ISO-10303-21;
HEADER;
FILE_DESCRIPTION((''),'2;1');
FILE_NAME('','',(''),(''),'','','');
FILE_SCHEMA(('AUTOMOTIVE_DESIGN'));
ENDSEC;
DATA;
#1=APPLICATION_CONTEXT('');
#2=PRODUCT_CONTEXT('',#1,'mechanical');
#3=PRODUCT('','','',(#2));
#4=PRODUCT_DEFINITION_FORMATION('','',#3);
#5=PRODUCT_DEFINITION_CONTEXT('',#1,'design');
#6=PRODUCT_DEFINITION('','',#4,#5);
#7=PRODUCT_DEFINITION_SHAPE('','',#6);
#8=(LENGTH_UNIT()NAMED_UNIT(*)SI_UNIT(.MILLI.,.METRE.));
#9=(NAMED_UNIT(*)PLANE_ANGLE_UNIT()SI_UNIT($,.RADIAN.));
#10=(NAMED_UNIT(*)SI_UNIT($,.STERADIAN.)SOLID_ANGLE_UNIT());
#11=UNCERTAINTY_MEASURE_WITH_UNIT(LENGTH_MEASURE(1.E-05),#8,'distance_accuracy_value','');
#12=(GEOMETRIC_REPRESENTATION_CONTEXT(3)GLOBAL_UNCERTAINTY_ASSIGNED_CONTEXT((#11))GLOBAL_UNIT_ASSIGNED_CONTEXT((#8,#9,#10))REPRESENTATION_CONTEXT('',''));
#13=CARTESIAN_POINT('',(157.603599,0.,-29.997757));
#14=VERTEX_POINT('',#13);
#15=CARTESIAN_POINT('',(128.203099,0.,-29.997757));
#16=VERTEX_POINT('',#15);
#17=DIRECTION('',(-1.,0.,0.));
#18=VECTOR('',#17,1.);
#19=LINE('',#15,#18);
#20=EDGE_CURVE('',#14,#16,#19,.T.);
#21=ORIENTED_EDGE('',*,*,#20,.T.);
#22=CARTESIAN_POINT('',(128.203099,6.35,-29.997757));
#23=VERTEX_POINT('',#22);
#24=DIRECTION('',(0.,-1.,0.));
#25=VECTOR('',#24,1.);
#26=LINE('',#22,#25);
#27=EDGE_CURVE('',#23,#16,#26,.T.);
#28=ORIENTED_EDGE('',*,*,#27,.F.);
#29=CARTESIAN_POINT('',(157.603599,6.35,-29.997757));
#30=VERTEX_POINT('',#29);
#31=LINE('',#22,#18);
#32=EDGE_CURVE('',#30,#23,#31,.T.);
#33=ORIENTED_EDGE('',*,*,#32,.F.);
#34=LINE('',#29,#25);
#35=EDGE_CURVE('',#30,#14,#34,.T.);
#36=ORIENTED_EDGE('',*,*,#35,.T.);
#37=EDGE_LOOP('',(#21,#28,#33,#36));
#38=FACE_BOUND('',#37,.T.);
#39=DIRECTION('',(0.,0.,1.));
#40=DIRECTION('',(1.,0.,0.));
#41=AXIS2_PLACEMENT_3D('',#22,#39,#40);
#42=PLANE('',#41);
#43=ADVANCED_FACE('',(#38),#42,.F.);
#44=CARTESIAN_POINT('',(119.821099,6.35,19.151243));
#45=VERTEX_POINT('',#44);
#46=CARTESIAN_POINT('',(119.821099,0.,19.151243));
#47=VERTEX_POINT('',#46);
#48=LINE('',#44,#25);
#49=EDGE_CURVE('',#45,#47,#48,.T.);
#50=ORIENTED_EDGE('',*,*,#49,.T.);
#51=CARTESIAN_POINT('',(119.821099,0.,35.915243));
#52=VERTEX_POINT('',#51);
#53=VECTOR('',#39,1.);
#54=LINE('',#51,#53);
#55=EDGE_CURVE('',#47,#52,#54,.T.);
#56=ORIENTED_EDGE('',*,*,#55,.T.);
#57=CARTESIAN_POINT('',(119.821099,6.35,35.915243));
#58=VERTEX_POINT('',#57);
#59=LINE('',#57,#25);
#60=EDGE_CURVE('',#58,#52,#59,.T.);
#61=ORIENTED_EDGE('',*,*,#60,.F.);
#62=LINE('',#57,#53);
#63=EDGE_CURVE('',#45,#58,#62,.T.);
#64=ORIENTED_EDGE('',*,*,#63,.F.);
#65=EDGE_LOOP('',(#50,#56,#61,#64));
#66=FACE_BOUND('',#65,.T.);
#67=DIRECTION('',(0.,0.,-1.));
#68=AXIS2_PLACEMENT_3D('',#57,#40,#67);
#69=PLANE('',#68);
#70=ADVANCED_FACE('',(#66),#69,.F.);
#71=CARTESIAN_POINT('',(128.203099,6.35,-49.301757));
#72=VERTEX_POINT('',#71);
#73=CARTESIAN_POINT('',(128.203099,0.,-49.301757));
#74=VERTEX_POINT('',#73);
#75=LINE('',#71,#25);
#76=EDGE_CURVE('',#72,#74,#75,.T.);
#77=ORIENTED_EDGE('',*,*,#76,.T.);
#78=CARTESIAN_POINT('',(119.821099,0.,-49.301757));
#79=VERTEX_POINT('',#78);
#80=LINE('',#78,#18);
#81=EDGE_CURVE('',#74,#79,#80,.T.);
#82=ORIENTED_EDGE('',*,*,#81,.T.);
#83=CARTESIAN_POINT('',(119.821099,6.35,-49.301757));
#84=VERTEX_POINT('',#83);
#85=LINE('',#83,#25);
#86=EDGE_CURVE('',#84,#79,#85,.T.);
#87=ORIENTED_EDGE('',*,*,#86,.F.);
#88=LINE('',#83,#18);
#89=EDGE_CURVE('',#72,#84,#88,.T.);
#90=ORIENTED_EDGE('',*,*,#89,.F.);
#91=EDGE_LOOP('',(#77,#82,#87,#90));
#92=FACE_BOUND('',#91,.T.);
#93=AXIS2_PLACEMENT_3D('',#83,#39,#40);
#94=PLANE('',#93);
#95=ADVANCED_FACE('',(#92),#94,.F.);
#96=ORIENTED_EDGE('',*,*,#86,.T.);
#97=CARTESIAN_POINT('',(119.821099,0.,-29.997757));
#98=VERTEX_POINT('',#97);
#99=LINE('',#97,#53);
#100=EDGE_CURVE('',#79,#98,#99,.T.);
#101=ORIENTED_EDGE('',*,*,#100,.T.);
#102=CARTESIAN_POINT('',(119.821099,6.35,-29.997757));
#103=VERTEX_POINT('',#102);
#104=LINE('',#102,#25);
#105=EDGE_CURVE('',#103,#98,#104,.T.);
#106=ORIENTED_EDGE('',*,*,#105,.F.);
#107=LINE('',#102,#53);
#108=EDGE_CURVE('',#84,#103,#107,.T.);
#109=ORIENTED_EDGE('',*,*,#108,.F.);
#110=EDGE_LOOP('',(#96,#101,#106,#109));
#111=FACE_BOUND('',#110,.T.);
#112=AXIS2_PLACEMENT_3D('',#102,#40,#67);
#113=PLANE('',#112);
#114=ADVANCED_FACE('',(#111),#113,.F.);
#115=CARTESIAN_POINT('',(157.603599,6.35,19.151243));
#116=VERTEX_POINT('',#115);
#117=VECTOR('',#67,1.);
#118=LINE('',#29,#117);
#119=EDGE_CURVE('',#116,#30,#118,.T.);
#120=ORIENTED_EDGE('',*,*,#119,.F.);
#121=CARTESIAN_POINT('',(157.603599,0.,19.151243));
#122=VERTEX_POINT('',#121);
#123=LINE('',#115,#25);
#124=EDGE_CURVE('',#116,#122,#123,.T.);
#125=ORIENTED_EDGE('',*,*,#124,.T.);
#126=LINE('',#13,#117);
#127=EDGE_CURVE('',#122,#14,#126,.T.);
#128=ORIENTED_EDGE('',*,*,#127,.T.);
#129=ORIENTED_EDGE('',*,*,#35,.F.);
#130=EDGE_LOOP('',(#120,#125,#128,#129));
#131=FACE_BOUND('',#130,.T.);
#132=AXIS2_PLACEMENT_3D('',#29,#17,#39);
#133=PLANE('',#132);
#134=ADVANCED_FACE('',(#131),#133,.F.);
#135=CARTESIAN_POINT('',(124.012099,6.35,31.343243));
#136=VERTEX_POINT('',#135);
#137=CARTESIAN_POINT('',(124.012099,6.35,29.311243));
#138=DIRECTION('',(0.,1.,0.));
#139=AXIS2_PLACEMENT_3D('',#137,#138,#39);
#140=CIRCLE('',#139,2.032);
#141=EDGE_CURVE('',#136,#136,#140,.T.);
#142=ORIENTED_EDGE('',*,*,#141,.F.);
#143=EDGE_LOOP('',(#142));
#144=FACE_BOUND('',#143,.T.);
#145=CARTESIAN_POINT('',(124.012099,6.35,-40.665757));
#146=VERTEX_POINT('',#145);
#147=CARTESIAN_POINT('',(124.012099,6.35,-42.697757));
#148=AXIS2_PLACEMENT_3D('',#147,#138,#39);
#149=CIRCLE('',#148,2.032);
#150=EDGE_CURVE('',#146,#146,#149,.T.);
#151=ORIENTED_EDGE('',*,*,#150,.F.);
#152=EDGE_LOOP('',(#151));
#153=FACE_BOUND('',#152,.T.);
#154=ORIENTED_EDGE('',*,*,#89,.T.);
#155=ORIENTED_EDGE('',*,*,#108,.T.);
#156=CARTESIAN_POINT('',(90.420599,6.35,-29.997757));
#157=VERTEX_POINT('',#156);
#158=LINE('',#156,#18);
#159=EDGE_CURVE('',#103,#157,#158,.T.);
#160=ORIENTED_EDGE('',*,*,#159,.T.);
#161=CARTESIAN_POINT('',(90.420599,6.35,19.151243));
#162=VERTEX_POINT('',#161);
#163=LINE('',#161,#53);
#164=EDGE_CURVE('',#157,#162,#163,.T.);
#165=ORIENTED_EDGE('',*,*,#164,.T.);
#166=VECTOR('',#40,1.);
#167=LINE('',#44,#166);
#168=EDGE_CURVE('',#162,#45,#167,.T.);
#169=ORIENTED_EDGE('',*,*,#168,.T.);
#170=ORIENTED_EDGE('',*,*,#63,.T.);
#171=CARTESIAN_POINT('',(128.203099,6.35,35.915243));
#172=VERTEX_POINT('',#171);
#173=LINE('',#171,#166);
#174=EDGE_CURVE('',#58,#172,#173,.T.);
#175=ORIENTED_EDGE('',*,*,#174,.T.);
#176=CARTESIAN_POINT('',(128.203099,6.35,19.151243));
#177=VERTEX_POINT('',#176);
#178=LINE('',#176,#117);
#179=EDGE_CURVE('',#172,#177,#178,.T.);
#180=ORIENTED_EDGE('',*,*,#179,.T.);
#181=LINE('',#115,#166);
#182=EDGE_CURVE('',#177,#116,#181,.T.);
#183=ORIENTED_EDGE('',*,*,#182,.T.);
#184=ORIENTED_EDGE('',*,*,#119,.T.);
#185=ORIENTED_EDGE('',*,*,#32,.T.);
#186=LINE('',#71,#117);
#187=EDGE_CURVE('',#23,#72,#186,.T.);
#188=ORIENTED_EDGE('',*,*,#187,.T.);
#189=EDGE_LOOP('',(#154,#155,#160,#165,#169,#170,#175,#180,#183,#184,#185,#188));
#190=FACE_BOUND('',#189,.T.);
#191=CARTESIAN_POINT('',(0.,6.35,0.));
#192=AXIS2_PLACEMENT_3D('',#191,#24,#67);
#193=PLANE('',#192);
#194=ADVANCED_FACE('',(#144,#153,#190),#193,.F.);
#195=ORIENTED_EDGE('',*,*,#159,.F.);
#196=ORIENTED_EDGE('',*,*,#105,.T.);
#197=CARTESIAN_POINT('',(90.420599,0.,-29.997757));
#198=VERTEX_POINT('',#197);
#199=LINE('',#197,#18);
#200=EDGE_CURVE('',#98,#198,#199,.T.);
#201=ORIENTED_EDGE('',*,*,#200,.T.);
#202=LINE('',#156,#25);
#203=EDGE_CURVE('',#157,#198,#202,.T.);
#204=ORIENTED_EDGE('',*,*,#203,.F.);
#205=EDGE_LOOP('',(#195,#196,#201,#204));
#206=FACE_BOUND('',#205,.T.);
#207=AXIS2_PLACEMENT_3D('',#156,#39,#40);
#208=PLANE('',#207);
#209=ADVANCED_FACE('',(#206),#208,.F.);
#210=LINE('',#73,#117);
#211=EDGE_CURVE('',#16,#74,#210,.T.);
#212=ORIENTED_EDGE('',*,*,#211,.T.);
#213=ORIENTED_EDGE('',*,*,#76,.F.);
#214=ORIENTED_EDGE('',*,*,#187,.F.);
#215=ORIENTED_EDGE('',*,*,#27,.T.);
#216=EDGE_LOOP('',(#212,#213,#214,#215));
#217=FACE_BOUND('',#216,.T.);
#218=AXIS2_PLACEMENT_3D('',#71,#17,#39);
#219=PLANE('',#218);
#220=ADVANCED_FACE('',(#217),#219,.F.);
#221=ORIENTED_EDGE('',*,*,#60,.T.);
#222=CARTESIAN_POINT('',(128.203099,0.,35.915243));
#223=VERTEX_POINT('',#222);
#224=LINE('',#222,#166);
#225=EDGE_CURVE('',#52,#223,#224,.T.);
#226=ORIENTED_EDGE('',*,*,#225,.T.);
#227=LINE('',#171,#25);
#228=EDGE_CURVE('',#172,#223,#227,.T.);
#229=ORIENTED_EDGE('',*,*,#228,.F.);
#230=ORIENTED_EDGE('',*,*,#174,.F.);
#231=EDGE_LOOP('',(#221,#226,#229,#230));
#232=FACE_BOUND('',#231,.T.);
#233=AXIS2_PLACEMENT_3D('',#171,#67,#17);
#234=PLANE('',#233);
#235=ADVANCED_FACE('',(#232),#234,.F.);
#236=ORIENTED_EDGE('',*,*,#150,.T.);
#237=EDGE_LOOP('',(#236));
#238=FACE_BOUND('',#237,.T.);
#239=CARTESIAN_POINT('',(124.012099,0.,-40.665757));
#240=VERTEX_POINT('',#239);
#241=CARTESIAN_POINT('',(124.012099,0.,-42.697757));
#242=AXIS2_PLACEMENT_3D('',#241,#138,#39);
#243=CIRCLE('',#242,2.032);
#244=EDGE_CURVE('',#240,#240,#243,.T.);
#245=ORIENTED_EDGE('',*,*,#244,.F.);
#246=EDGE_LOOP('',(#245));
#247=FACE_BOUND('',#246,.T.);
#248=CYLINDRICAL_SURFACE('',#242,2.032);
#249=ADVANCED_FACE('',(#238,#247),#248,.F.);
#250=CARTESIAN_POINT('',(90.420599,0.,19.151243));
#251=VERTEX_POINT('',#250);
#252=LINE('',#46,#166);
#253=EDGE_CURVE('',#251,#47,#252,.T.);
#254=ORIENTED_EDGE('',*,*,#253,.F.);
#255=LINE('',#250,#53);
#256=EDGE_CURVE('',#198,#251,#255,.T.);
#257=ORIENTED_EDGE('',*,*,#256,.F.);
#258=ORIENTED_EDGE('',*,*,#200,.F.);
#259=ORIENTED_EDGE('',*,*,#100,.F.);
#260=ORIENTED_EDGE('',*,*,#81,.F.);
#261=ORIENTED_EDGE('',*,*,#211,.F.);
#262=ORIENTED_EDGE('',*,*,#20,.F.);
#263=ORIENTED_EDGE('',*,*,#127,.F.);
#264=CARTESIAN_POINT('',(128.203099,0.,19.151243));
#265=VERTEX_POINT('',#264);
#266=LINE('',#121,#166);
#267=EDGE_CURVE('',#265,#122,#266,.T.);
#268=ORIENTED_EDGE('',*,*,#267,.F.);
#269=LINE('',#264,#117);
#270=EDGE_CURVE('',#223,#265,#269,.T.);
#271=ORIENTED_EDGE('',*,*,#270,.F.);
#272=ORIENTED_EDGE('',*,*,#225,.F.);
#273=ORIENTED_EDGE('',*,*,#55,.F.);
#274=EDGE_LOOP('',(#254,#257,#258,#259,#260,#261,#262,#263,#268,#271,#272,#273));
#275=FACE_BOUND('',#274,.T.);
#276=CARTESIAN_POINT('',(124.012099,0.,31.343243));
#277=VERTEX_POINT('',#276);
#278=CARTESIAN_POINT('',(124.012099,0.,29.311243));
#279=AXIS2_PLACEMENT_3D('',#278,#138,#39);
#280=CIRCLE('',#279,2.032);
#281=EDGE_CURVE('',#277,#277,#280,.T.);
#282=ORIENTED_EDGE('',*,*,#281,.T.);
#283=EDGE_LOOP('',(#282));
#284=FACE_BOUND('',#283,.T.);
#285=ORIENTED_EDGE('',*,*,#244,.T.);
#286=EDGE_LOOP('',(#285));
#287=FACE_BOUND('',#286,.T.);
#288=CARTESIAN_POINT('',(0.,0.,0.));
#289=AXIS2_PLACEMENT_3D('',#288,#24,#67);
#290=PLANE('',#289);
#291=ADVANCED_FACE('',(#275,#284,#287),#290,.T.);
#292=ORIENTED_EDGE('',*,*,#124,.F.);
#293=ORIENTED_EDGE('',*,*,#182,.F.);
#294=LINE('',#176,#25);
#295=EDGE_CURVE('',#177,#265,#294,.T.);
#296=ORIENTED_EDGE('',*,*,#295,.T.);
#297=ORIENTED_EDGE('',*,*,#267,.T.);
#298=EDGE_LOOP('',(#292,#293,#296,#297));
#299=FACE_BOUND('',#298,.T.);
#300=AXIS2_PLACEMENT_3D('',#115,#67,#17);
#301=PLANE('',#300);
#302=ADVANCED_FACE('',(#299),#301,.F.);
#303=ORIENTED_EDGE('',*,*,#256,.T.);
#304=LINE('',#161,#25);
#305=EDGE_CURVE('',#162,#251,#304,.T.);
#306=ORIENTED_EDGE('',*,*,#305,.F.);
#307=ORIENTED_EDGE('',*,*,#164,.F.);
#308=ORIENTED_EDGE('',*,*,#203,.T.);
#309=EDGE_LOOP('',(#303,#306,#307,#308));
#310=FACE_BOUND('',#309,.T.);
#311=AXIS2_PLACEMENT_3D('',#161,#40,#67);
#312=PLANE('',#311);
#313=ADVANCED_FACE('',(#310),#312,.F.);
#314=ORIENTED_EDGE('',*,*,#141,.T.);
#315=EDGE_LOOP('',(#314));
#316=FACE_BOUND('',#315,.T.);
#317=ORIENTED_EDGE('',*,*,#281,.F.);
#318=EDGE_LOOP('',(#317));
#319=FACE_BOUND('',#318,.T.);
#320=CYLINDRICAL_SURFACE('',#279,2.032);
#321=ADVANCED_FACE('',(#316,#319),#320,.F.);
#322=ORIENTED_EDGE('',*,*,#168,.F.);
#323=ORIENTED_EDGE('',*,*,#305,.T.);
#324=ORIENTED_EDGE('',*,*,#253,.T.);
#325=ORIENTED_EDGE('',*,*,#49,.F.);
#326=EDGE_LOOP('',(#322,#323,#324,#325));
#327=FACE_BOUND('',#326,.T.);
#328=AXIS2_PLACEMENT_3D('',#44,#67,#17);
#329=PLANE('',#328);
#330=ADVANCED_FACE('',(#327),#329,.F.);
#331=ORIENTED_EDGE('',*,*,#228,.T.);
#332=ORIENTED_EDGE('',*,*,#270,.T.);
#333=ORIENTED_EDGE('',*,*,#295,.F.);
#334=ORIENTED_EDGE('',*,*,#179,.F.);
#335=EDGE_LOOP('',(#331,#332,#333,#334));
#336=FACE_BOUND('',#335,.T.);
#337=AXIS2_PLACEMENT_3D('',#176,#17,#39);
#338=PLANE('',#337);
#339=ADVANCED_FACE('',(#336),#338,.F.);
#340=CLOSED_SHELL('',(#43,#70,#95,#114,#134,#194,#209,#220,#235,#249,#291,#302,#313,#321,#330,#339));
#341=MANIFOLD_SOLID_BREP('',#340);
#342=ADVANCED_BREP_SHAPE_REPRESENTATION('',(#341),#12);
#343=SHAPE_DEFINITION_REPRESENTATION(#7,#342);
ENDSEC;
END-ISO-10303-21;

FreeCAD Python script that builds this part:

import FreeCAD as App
import Part
import Sketcher
from FreeCAD import Vector
Q = App.Units.Quantity


def add_polygon(sketch, points):
    """Adds a closed chain of lines whose ends are joined by coincident constraints."""
    first, n = sketch.GeometryCount, len(points)
    for a, b in zip(points, points[1:] + points[:1]):
        sketch.addGeometry(Part.LineSegment(App.Vector(*a, 0), App.Vector(*b, 0)), False)
    for i in range(n):
        sketch.addConstraint(Sketcher.Constraint("Coincident", first + i, 2, first + (i + 1) % n, 1))

doc = App.newDocument("Part")
params = doc.addObject("Spreadsheet::Sheet", "Params")
for row, (alias, value) in enumerate([
    ("sketch1_width", "0.33 in"),
    ("sketch1_height", "0.66 in"),
    ("sketch1_height2", "0.76 in"),
    ("sketch1_height3", "1.935 in"),
    ("pad1_length", "0.25 in"),
    ("sketch2_diameter", "0.16 in"),
], start=1):
    params.set(f"A{row}", alias)
    params.set(f"B{row}", "=" + value)
    params.setAlias(f"B{row}", alias)

body = doc.addObject("PartDesign::Body", "Body")

# Sketch on XZ plane
sketch1 = doc.addObject("Sketcher::SketchObject", "Sketch")
body.addObject(sketch1)
sketch1.AttachmentSupport = (doc.XZ_Plane, [""])
sketch1.MapMode = "FlatFace"
add_polygon(sketch1, [(120, -30), (90, -30), (90, 19), (120, 19), (120, 36), (128, 36), (128, 19), (158, 19), (158, -30), (128, -30), (128, -49), (120, -49)])  # lines 0-11
sketch1.addConstraint(Sketcher.Constraint("Horizontal", 0))
sketch1.addConstraint(Sketcher.Constraint("Vertical", 1))
sketch1.addConstraint(Sketcher.Constraint("Horizontal", 2))
sketch1.addConstraint(Sketcher.Constraint("Vertical", 3))
sketch1.addConstraint(Sketcher.Constraint("Horizontal", 4))
sketch1.addConstraint(Sketcher.Constraint("Vertical", 5))
sketch1.addConstraint(Sketcher.Constraint("Horizontal", 6))
sketch1.addConstraint(Sketcher.Constraint("Vertical", 7))
sketch1.addConstraint(Sketcher.Constraint("Horizontal", 8))
sketch1.addConstraint(Sketcher.Constraint("Vertical", 9))
sketch1.addConstraint(Sketcher.Constraint("Horizontal", 10))
sketch1.addConstraint(Sketcher.Constraint("Vertical", 11))
sketch1.addConstraint(Sketcher.Constraint("Horizontal", 2, 2, 5, 2))
sketch1.addConstraint(Sketcher.Constraint("Horizontal", 0, 2, 7, 2))
sketch1.addConstraint(Sketcher.Constraint("Vertical", 5, 2, 8, 2))
sketch1.addConstraint(Sketcher.Constraint("Vertical", 3, 2, 10, 2))
sketch1.addConstraint(Sketcher.Constraint("Equal", 2, 6))
sketch1.addConstraint(Sketcher.Constraint("DistanceX", 4, 1, 4, 2, Q("0.33 in")))
sketch1.addConstraint(Sketcher.Constraint("DistanceY", 3, 1, 3, 2, Q("0.66 in")))
sketch1.addConstraint(Sketcher.Constraint("DistanceY", 9, 2, 9, 1, Q("0.76 in")))
sketch1.addConstraint(Sketcher.Constraint("DistanceY", 1, 1, 1, 2, Q("1.935 in")))
sketch1.addConstraint(Sketcher.Constraint("DistanceX", 0, 2, 0, 1, Q("1.1575 in")))
sketch1.addConstraint(Sketcher.Constraint("DistanceX", -1, 1, 0, 2, Q("90.420599 mm")))
sketch1.addConstraint(Sketcher.Constraint("DistanceY", 0, 2, -1, 1, Q("29.997757 mm")))
sketch1.setExpression("Constraints[29]", "Params.sketch1_width")
sketch1.setExpression("Constraints[30]", "Params.sketch1_height")
sketch1.setExpression("Constraints[31]", "Params.sketch1_height2")
sketch1.setExpression("Constraints[32]", "Params.sketch1_height3")
pad1 = doc.addObject("PartDesign::Pad", "Pad")
body.addObject(pad1)
pad1.Profile = sketch1
pad1.setExpression("Length", "Params.pad1_length")
pad1.Reversed = True

# Sketch on XZ plane
sketch2 = doc.addObject("Sketcher::SketchObject", "Sketch001")
body.addObject(sketch2)
sketch2.AttachmentSupport = (doc.XZ_Plane, [""])
sketch2.MapMode = "FlatFace"
sketch2.AttachmentOffset = App.Placement(Vector(0, 0, -0.25 * 25.4), App.Rotation())
sketch2.addGeometry(Part.Circle(Vector(124, 29.3, 0), Vector(0, 0, 1), 2), False)
sketch2.addGeometry(Part.Circle(Vector(124, -42.7, 0), Vector(0, 0, 1), 2), False)
sketch2.addConstraint(Sketcher.Constraint("Equal", 0, 1))
sketch2.addConstraint(Sketcher.Constraint("Vertical", 0, 3, 1, 3))
sketch2.addConstraint(Sketcher.Constraint("Diameter", 0, Q("0.16 in")))
sketch2.addConstraint(Sketcher.Constraint("DistanceY", 1, 3, 0, 3, Q("2.835 in")))
sketch2.addConstraint(Sketcher.Constraint("DistanceX", -1, 1, 0, 3, Q("124.012099 mm")))
sketch2.addConstraint(Sketcher.Constraint("DistanceY", -1, 1, 0, 3, Q("29.311243 mm")))
sketch2.setExpression("Constraints[2]", "Params.sketch2_diameter")
pocket1 = doc.addObject("PartDesign::Pocket", "Pocket")
body.addObject(pocket1)
pocket1.Profile = sketch2
pocket1.Type = "ThroughAll"
pocket1.Reversed = True

doc.recompute()
